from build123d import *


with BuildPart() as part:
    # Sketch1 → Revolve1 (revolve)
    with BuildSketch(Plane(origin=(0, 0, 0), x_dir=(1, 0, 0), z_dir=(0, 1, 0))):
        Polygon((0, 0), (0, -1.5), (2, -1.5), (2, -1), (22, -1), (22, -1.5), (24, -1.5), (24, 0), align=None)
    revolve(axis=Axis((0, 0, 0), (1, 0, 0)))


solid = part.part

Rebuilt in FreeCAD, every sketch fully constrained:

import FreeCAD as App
import Part
import Sketcher
Q = App.Units.Quantity


def add_polygon(sketch, points):
    """Adds a closed chain of lines whose ends are joined by coincident constraints."""
    first, n = sketch.GeometryCount, len(points)
    for a, b in zip(points, points[1:] + points[:1]):
        sketch.addGeometry(Part.LineSegment(App.Vector(*a, 0), App.Vector(*b, 0)), False)
    for i in range(n):
        sketch.addConstraint(Sketcher.Constraint("Coincident", first + i, 2, first + (i + 1) % n, 1))

doc = App.newDocument("Part")
body = doc.addObject("PartDesign::Body", "Body")

# Sketch on XZ plane
sketch1 = body.newObject("Sketcher::SketchObject", "Sketch")
sketch1.AttachmentSupport = (doc.getObject("XZ_Plane"), [""])
sketch1.MapMode = "FlatFace"
add_polygon(sketch1, [(0, 0), (0, 1.5), (2, 1.5), (2, 1), (22, 1), (22, 1.5), (24, 1.5), (24, 0)])  # lines 0-7
sketch1.addConstraint(Sketcher.Constraint("Vertical", 0))
sketch1.addConstraint(Sketcher.Constraint("Horizontal", 1))
sketch1.addConstraint(Sketcher.Constraint("Vertical", 2))
sketch1.addConstraint(Sketcher.Constraint("Horizontal", 3))
sketch1.addConstraint(Sketcher.Constraint("Vertical", 4))
sketch1.addConstraint(Sketcher.Constraint("Horizontal", 5))
sketch1.addConstraint(Sketcher.Constraint("Vertical", 6))
sketch1.addConstraint(Sketcher.Constraint("Horizontal", 7))
sketch1.addConstraint(Sketcher.Constraint("Coincident", 7, 2, -1, 1))
sketch1.addConstraint(Sketcher.Constraint("Horizontal", 1, 2, 4, 2))
sketch1.addConstraint(Sketcher.Constraint("Equal", 1, 5))
sketch1.addConstraint(Sketcher.Constraint("DistanceX", 1, 1, 1, 2, Q("2 mm")))
sketch1.addConstraint(Sketcher.Constraint("DistanceX", 3, 1, 3, 2, Q("20 mm")))
sketch1.addConstraint(Sketcher.Constraint("DistanceY", 0, 1, 0, 2, Q("1.5 mm")))
sketch1.addConstraint(Sketcher.Constraint("DistanceY", 2, 2, 2, 1, Q("0.5 mm")))
revolution = body.newObject("PartDesign::Revolution", "Revolution")
revolution.Profile = sketch1
revolution.ReferenceAxis = (sketch1, ["H_Axis"])
revolution.Angle = 360

doc.recompute()
